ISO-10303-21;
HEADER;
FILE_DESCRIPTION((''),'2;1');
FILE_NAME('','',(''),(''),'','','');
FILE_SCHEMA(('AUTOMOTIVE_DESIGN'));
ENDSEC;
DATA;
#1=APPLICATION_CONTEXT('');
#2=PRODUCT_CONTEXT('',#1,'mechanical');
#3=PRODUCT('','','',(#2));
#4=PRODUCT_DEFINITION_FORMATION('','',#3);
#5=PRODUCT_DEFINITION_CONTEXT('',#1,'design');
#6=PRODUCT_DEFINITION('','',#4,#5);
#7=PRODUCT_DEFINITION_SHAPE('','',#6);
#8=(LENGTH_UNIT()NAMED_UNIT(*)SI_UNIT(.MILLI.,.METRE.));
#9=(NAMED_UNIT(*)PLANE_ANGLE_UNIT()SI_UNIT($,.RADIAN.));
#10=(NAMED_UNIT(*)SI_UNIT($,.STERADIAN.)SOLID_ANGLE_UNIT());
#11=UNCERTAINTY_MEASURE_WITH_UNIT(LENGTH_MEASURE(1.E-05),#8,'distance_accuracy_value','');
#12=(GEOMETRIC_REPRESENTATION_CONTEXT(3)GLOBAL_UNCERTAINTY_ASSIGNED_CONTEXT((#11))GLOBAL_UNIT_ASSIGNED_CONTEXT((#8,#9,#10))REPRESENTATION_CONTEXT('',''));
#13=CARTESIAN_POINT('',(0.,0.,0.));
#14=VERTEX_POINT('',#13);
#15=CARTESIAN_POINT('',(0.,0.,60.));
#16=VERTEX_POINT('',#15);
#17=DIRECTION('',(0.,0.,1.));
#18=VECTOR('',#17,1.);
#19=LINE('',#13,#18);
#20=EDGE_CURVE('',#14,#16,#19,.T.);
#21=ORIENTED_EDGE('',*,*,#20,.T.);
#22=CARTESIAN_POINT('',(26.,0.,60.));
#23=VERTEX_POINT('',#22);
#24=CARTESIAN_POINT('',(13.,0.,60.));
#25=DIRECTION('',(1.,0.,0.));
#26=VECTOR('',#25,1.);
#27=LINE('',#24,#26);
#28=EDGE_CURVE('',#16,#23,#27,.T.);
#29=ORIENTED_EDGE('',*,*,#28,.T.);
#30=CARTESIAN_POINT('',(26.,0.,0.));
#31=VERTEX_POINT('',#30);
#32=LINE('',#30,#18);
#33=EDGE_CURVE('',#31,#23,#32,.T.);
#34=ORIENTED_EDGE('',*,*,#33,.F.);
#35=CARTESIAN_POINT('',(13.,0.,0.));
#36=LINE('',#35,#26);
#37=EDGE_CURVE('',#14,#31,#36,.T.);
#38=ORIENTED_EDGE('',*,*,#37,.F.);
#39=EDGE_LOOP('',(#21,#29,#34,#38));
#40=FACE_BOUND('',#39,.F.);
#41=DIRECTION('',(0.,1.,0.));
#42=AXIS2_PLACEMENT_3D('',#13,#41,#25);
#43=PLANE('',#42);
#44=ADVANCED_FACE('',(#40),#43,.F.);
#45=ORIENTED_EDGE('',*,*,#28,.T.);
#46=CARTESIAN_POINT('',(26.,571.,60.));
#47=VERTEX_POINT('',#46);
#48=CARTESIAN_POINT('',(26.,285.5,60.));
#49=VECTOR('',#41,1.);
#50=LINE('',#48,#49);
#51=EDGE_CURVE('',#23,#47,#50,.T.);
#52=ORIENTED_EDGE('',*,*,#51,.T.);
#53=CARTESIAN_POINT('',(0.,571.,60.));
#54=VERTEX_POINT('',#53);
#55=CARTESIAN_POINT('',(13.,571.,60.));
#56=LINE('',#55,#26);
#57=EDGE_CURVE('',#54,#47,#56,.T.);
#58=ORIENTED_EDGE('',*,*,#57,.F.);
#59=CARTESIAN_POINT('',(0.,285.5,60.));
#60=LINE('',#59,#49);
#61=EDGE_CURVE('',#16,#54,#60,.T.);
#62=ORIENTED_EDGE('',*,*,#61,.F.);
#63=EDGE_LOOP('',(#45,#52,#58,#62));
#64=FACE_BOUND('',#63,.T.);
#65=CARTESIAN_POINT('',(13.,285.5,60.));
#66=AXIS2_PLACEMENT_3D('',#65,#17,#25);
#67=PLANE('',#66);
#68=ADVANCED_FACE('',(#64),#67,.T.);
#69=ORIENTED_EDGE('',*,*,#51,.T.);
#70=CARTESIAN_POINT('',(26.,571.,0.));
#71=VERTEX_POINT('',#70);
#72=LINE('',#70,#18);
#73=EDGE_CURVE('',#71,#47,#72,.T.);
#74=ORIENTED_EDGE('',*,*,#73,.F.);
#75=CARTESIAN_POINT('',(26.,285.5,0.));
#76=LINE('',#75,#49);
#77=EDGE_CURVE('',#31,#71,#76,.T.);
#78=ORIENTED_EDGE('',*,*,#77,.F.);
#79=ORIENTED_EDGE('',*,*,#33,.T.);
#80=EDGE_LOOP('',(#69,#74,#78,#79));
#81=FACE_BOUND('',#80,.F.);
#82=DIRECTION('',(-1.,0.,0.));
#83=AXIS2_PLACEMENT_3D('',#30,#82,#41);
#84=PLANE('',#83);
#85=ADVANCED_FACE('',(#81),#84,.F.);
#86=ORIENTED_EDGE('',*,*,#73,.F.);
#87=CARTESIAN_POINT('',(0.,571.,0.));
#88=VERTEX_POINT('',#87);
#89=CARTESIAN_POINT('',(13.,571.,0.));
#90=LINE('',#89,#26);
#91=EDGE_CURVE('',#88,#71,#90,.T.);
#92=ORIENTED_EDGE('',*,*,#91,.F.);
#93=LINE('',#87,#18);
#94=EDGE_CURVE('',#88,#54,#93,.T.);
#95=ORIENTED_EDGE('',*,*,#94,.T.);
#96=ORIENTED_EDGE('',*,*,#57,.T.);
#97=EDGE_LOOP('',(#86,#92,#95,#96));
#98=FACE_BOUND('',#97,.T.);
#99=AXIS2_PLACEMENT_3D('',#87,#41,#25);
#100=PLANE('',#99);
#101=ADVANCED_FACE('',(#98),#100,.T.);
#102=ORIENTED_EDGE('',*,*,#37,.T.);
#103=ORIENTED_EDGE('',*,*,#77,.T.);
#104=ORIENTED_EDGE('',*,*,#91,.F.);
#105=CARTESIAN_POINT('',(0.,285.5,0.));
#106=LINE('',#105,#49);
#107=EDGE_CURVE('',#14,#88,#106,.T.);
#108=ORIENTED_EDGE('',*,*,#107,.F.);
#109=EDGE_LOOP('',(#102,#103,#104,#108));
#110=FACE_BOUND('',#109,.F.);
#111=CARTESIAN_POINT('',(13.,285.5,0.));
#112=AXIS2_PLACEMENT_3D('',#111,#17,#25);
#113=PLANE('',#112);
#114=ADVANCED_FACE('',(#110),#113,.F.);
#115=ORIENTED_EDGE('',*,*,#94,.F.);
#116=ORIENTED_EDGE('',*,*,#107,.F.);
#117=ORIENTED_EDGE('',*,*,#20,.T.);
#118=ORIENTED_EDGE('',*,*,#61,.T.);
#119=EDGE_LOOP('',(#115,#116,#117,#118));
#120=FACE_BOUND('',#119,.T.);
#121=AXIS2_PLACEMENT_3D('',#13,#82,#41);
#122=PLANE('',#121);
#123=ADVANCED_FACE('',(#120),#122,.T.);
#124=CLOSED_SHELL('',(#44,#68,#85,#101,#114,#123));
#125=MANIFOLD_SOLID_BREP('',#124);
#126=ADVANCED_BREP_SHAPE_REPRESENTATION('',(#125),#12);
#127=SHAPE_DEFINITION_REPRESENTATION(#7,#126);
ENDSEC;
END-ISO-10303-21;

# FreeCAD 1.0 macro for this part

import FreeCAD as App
import Part
import Sketcher
Q = App.Units.Quantity

doc = App.newDocument("Part")
body = doc.addObject("PartDesign::Body", "Body")

# Sketch on XY plane
sketch1 = body.newObject("Sketcher::SketchObject", "Sketch")
sketch1.AttachmentSupport = (doc.getObject("XY_Plane"), [""])
sketch1.MapMode = "FlatFace"
sketch1.addGeometry(Part.LineSegment(App.Vector(0, 571, 0), App.Vector(0, 0, 0)), False)
sketch1.addGeometry(Part.LineSegment(App.Vector(0, 0, 0), App.Vector(26, 0, 0)), False)
sketch1.addGeometry(Part.LineSegment(App.Vector(26, 0, 0), App.Vector(26, 571, 0)), False)
sketch1.addGeometry(Part.LineSegment(App.Vector(26, 571, 0), App.Vector(0, 571, 0)), False)
sketch1.addConstraint(Sketcher.Constraint("Coincident", 0, 2, 1, 1))
sketch1.addConstraint(Sketcher.Constraint("Coincident", 1, 2, 2, 1))
sketch1.addConstraint(Sketcher.Constraint("Coincident", 2, 2, 3, 1))
sketch1.addConstraint(Sketcher.Constraint("Coincident", 3, 2, 0, 1))
sketch1.addConstraint(Sketcher.Constraint("Vertical", 0))
sketch1.addConstraint(Sketcher.Constraint("Horizontal", 1))
sketch1.addConstraint(Sketcher.Constraint("Vertical", 2))
sketch1.addConstraint(Sketcher.Constraint("Horizontal", 3))
sketch1.addConstraint(Sketcher.Constraint("Coincident", 0, 2, -1, 1))
sketch1.addConstraint(Sketcher.Constraint("DistanceX", 1, 1, 1, 2, Q("26 mm")))
sketch1.addConstraint(Sketcher.Constraint("DistanceY", 0, 2, 0, 1, Q("571 mm")))
pad1 = body.newObject("PartDesign::Pad", "Pad")
pad1.Profile = sketch1
pad1.Length = 60

doc.recompute()
